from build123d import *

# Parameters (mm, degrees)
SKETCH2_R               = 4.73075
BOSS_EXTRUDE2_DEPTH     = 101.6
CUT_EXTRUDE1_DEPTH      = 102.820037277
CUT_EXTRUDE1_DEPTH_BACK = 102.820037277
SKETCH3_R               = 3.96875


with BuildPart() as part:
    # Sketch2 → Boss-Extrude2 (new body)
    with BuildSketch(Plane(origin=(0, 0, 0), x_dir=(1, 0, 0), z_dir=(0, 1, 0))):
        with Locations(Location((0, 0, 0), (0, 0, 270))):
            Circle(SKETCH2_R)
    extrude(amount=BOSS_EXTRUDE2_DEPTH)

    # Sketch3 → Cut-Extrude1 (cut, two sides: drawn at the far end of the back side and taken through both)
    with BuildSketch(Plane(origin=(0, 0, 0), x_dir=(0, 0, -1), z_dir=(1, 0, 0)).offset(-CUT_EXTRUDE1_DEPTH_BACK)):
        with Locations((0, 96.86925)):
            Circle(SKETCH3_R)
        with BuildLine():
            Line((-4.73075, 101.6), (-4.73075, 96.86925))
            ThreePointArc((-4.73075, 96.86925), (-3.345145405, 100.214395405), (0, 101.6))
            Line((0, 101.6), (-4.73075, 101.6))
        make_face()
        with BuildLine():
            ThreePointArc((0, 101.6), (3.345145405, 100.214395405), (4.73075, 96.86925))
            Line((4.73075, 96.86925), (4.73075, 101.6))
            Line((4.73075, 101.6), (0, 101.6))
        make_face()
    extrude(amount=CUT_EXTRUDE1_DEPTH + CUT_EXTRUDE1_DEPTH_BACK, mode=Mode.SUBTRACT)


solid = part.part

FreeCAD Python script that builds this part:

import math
import FreeCAD as App
import Part
import Sketcher

V = App.Vector
Q = App.Units.Quantity

doc = App.newDocument("Part")
body = doc.addObject("PartDesign::Body", "Body")

sketch1 = body.newObject("Sketcher::SketchObject", "Sketch")
sketch1.AttachmentSupport = (doc.getObject("XZ_Plane"), [""])
sketch1.MapMode = "FlatFace"
sketch1.addGeometry(Part.Circle(V(0, 0, 0), V(0, 0, 1), 4.73075), False)
sketch1.addConstraint([
    Sketcher.Constraint("Coincident", 0, 3, -1, 1),
    Sketcher.Constraint("Diameter", 0, Q("0.3725 in")),
])
pad1 = body.newObject("PartDesign::Pad", "Pad")
pad1.Profile = sketch1
pad1.Length = Q("4 in")
pad1.Reversed = True

sketch2 = body.newObject("Sketcher::SketchObject", "Sketch001")
sketch2.AttachmentSupport = (doc.getObject("YZ_Plane"), [""])
sketch2.MapMode = "FlatFace"
sketch2.addGeometry([
    Part.Circle(V(96.86925, 0, 0), V(0, 0, 1), 3.96875),
    Part.LineSegment(V(101.6, 4.73075, 0), V(96.86925, 4.73075, 0)),
    Part.ArcOfCircle(Part.Circle(V(96.86925, 0, 0), V(0, 0, 1), 4.73075), math.radians(0), math.radians(90)),
    Part.LineSegment(V(101.6, 0, 0), V(101.6, 4.73075, 0)),
    Part.ArcOfCircle(Part.Circle(V(96.86925, 0, 0), V(0, 0, 1), 4.73075), math.radians(-90), math.radians(0)),
    Part.LineSegment(V(96.86925, -4.73075, 0), V(101.6, -4.73075, 0)),
    Part.LineSegment(V(101.6, -4.73075, 0), V(101.6, 0, 0)),
], False)
sketch2.addConstraint([
    Sketcher.Constraint("Tangent", 1, 2, 2, 2),
    Sketcher.Constraint("Tangent", 2, 1, 3, 1),
    Sketcher.Constraint("Coincident", 3, 2, 1, 1),
    Sketcher.Constraint("Tangent", 4, 1, 5, 1),
    Sketcher.Constraint("Coincident", 5, 2, 6, 1),
    Sketcher.Constraint("Tangent", 6, 2, 4, 2),
    Sketcher.Constraint("Horizontal", 1),
    Sketcher.Constraint("Vertical", 3),
    Sketcher.Constraint("Horizontal", 5),
    Sketcher.Constraint("Vertical", 6),
    Sketcher.Constraint("Coincident", 2, 3, 0, 3),
    Sketcher.Constraint("Coincident", 4, 3, 0, 3),
    Sketcher.Constraint("Equal", 2, 4),
    Sketcher.Constraint("PointOnObject", 0, 3, -1),
    Sketcher.Constraint("Diameter", 0, Q("0.3125 in")),
    Sketcher.Constraint("DistanceX", -1, 1, 2, 1, Q("4 in")),
    Sketcher.Constraint("Radius", 2, 4.73075),
])
pocket1 = body.newObject("PartDesign::Pocket", "Pocket")
pocket1.Profile = sketch2
pocket1.Type = "ThroughAll"
pocket1.Midplane = True

doc.recompute()
